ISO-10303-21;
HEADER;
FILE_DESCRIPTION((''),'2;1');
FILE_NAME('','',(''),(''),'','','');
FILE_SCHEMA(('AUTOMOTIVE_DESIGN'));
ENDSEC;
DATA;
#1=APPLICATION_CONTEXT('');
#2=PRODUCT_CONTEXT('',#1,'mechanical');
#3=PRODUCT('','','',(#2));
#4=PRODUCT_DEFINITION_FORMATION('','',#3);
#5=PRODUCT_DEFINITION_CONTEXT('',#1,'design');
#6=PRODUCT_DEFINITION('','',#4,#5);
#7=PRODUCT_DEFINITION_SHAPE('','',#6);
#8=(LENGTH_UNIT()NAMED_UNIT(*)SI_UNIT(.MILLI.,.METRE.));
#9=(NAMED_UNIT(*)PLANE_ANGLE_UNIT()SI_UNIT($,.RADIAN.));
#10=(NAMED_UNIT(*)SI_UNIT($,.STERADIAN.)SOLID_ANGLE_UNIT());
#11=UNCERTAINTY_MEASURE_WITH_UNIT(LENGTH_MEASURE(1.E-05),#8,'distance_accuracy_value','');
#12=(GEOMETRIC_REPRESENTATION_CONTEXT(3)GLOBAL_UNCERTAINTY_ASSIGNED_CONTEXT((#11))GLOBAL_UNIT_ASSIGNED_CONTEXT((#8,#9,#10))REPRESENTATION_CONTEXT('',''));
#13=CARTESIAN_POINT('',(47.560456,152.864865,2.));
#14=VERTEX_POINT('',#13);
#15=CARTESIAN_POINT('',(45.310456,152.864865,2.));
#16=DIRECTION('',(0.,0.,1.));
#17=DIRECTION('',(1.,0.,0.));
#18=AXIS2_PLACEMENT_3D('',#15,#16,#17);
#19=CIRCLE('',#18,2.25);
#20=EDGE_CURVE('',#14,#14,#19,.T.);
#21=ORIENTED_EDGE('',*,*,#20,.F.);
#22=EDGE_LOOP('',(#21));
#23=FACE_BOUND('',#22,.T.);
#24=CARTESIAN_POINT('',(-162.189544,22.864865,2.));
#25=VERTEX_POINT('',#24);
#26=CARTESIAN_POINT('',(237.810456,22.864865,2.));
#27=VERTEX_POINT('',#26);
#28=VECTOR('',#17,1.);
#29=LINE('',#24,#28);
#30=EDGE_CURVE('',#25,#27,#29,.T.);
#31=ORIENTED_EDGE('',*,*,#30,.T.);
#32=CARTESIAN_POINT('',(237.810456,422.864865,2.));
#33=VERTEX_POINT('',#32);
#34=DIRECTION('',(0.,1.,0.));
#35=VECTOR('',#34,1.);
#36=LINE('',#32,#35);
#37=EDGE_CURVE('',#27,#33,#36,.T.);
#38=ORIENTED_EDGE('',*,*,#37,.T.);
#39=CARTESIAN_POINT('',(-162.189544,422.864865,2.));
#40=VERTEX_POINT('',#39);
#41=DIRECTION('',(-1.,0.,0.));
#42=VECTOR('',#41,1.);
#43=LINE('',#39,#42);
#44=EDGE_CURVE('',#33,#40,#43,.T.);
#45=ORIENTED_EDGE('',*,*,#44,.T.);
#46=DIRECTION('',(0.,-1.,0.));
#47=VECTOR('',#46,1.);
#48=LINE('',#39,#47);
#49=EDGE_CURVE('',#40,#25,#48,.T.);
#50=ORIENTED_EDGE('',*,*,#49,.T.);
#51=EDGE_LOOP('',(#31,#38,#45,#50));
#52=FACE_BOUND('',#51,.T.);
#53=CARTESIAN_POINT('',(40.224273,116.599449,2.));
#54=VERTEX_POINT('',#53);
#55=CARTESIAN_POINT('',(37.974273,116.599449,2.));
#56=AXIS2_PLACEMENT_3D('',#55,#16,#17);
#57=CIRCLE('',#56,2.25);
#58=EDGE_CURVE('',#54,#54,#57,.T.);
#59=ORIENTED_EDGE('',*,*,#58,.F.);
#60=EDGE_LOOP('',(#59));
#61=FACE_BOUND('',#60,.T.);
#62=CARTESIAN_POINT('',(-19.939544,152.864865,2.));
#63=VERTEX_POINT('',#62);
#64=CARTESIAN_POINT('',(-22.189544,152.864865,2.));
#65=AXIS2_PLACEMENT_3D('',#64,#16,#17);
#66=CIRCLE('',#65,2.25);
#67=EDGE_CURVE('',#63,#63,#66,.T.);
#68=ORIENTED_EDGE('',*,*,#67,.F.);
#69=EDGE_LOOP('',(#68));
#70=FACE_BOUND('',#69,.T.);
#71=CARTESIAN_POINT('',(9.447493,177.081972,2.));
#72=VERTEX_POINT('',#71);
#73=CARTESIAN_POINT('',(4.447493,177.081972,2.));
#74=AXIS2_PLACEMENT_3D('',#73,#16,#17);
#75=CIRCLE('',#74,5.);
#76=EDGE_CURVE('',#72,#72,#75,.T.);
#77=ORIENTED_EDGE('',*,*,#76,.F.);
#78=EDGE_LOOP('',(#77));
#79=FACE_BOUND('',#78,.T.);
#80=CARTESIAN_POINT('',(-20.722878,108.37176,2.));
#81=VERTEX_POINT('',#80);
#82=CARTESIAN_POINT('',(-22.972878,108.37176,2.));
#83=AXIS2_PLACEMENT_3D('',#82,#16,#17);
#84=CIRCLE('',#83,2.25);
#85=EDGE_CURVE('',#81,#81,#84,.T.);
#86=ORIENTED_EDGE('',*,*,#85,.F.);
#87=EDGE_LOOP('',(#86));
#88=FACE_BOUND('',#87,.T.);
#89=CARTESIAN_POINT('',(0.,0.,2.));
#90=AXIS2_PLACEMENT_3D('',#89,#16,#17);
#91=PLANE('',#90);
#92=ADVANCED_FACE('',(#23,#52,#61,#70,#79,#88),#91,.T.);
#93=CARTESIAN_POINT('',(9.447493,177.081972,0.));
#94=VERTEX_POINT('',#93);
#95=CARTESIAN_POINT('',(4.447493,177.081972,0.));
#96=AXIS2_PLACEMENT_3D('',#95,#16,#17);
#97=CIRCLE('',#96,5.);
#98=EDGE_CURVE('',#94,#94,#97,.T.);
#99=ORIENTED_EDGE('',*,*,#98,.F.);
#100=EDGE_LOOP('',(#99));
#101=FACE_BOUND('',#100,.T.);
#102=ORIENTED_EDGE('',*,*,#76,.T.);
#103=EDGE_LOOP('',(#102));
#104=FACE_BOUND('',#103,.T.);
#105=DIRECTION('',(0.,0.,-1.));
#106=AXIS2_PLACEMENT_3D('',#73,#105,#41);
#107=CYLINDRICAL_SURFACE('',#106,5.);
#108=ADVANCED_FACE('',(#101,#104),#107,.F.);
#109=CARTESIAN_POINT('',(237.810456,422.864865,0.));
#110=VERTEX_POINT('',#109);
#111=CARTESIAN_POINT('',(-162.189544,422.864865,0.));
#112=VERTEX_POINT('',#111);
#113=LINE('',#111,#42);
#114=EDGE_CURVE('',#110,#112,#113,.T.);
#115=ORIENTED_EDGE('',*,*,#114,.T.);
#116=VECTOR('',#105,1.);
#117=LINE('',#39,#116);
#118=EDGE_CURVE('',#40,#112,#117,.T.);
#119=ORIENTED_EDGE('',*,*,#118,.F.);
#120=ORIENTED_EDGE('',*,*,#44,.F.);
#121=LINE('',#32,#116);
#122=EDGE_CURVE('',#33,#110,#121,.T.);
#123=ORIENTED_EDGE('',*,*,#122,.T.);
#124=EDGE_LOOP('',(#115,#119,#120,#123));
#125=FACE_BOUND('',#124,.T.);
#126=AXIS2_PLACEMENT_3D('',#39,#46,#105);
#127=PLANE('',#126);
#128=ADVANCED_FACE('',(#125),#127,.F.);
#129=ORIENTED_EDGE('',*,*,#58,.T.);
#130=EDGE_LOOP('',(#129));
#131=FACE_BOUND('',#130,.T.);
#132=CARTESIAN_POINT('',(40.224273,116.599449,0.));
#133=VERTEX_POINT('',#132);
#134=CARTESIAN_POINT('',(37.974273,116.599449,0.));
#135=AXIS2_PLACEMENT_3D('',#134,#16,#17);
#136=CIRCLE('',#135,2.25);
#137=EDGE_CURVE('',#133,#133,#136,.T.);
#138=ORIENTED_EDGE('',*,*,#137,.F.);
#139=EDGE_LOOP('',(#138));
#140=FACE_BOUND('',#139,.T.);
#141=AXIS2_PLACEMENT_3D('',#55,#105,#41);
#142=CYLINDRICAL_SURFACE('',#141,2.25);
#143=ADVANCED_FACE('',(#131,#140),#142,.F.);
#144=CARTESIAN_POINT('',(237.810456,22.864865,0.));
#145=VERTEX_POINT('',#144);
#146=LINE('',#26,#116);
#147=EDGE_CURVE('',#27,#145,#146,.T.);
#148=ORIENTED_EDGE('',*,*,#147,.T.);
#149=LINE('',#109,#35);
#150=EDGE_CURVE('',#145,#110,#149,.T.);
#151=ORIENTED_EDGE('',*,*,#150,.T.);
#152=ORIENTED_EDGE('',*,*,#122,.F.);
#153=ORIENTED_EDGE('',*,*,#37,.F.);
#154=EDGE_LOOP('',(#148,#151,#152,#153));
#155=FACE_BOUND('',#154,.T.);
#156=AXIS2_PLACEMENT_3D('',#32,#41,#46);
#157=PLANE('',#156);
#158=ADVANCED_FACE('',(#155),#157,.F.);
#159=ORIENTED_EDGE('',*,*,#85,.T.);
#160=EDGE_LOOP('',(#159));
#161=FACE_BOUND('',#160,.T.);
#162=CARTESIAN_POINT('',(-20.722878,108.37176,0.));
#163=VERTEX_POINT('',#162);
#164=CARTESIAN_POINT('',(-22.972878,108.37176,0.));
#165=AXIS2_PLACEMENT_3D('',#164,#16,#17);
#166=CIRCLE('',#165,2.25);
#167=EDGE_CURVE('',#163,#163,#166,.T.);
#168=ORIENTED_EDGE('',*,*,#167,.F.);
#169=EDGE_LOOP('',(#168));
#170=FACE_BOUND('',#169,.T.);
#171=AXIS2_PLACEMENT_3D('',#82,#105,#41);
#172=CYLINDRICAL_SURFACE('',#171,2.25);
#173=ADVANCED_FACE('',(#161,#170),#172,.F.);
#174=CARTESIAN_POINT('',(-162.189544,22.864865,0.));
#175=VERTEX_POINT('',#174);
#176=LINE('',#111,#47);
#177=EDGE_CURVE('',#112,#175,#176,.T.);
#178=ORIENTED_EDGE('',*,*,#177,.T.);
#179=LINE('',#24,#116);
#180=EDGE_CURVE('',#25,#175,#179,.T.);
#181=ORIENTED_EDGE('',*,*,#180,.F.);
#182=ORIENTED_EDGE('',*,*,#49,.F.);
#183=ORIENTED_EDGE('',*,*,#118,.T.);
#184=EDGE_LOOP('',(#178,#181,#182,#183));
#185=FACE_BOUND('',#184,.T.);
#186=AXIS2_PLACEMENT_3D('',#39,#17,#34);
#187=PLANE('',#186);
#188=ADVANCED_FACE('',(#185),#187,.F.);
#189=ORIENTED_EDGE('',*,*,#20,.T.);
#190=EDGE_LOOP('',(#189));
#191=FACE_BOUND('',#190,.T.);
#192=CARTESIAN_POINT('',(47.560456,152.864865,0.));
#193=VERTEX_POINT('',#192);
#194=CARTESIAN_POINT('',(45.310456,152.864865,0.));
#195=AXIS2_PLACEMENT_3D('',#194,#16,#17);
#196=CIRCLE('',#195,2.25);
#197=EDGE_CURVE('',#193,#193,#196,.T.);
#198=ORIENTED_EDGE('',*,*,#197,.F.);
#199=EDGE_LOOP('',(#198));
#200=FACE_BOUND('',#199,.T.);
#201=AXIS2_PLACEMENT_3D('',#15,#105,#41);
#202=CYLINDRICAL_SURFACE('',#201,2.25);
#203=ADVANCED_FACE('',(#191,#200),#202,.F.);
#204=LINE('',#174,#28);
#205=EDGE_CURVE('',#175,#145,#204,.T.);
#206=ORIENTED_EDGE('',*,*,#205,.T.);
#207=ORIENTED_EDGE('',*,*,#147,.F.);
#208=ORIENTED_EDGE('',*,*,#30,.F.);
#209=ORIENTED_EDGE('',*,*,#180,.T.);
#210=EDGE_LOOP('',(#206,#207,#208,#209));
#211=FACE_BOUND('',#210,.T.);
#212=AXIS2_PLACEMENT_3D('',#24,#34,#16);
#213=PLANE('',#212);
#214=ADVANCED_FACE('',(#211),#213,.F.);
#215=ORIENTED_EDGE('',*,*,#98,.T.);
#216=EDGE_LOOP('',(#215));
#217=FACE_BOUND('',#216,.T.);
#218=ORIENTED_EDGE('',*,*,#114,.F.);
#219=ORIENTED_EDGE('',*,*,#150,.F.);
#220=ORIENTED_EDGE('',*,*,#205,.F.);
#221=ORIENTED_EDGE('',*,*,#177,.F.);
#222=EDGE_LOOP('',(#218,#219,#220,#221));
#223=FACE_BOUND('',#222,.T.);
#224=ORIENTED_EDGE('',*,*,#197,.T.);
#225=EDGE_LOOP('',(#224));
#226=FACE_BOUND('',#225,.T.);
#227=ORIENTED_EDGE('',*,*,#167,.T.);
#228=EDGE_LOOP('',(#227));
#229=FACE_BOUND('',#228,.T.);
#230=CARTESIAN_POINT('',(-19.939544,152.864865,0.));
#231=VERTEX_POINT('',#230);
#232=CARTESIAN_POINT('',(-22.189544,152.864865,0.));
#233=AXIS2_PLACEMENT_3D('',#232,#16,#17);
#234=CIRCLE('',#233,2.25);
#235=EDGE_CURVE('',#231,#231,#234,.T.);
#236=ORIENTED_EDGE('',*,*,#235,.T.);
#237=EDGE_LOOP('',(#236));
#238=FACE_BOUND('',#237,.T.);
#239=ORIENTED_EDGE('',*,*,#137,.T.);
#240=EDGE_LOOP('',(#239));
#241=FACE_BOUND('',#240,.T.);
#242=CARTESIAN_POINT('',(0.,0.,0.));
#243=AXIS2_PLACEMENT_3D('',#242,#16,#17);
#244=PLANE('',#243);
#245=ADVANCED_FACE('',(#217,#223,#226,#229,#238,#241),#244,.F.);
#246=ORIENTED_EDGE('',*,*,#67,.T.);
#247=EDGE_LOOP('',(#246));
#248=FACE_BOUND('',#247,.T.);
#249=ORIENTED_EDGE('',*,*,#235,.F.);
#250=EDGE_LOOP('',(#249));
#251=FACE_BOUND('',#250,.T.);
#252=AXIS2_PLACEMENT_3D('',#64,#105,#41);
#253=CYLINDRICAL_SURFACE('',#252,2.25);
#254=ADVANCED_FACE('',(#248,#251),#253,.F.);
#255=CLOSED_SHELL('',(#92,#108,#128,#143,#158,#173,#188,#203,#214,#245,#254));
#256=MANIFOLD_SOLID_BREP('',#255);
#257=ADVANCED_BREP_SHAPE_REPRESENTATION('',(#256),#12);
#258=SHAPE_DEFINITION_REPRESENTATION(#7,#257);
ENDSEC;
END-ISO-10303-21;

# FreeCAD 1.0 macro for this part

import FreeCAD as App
import Part
import Sketcher


def add_polygon(sketch, points):
    """Adds a closed chain of lines whose ends are joined by coincident constraints."""
    first, n = sketch.GeometryCount, len(points)
    for a, b in zip(points, points[1:] + points[:1]):
        sketch.addGeometry(Part.LineSegment(App.Vector(*a, 0), App.Vector(*b, 0)), False)
    for i in range(n):
        sketch.addConstraint(Sketcher.Constraint("Coincident", first + i, 2, first + (i + 1) % n, 1))

doc = App.newDocument("Part")
body = doc.addObject("PartDesign::Body", "Body")

sketch1 = body.newObject("Sketcher::SketchObject", "Sketch")
sketch1.AttachmentSupport = (doc.getObject("XY_Plane"), [""])
sketch1.MapMode = "FlatFace"
add_polygon(sketch1, [(-162.2, 422.9), (-162.2, 22.9), (237.8, 22.9), (237.8, 422.9)])
sketch1.addGeometry(Part.Circle(App.Vector(-23, 108.4, 0), App.Vector(0, 0, 1), 2.2), False)
sketch1.addGeometry(Part.Circle(App.Vector(38, 116.6, 0), App.Vector(0, 0, 1), 2.2), False)
sketch1.addGeometry(Part.Circle(App.Vector(-22.2, 152.9, 0), App.Vector(0, 0, 1), 2.2), False)
sketch1.addGeometry(Part.Circle(App.Vector(4.4, 177.1, 0), App.Vector(0, 0, 1), 5), False)
sketch1.addGeometry(Part.Circle(App.Vector(45.3, 152.9, 0), App.Vector(0, 0, 1), 2.2), False)
sketch1.addConstraint([
    Sketcher.Constraint("Vertical", 0),
    Sketcher.Constraint("Horizontal", 1),
    Sketcher.Constraint("Vertical", 2),
    Sketcher.Constraint("Horizontal", 3),
    Sketcher.Constraint("Equal", 4, 5),
    Sketcher.Constraint("Equal", 5, 6),
    Sketcher.Constraint("Equal", 6, 8),
    Sketcher.Constraint("Horizontal", 6, 3, 8, 3),
    Sketcher.Constraint("Equal", 3, 0),
    Sketcher.Constraint("Diameter", 7, 10.0),
    Sketcher.Constraint("Diameter", 4, 4.5),
    Sketcher.Constraint("DistanceX", 1, 1, 1, 2, 400.0),
    Sketcher.Constraint("DistanceX", 0, 2, 6, 3, 140.0),
    Sketcher.Constraint("DistanceY", 0, 2, 6, 3, 130.0),
    Sketcher.Constraint("DistanceX", 6, 3, 8, 3, 67.5),
    Sketcher.Constraint("DistanceY", -1, 1, 4, 3, 108.37176),
    Sketcher.Constraint("DistanceY", -1, 1, 5, 3, 116.599449),
    Sketcher.Constraint("DistanceY", -1, 1, 7, 3, 177.081972),
    Sketcher.Constraint("DistanceX", 4, 3, 5, 3, 60.94715),
    Sketcher.Constraint("DistanceX", 7, 3, 5, 3, 33.52678),
    Sketcher.Constraint("DistanceX", 4, 3, -1, 1, 22.972878),
    Sketcher.Constraint("DistanceX", 6, 3, -1, 1, 22.189544),
    Sketcher.Constraint("DistanceY", -1, 1, 6, 3, 152.864865),
])
pad1 = body.newObject("PartDesign::Pad", "Pad")
pad1.Profile = sketch1
pad1.Length = 2

doc.recompute()
